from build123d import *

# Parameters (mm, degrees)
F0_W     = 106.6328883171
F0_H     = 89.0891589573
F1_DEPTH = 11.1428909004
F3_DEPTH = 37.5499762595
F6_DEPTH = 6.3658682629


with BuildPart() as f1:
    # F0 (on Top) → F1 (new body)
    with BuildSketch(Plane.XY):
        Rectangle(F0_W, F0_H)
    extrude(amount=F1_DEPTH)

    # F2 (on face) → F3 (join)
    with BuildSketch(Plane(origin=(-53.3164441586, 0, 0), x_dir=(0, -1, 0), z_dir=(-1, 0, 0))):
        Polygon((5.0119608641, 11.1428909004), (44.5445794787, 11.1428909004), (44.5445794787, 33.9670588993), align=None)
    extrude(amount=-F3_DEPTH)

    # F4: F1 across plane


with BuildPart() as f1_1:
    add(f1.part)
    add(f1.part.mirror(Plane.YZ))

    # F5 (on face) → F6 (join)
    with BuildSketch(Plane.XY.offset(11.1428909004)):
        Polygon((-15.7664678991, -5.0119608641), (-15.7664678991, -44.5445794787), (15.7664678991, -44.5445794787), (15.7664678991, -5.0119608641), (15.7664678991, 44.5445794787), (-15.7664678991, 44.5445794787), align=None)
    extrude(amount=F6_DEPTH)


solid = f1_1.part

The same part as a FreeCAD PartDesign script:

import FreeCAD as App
import Part
import Sketcher
from FreeCAD import Vector
Q = App.Units.Quantity

doc = App.newDocument("Part")
body = doc.addObject("PartDesign::Body", "Body")

sketch1 = body.newObject("Sketcher::SketchObject", "Sketch")
sketch1.AttachmentSupport = (doc.getObject("XY_Plane"), [""])
sketch1.MapMode = "FlatFace"
sketch1.addGeometry([
    Part.LineSegment(Vector(-53, 45, 0), Vector(-53, -45, 0)),
    Part.LineSegment(Vector(-53, -45, 0), Vector(53, -45, 0)),
    Part.LineSegment(Vector(53, -45, 0), Vector(53, 45, 0)),
    Part.LineSegment(Vector(53, 45, 0), Vector(-53, 45, 0)),
], False)
sketch1.addConstraint([
    Sketcher.Constraint("Coincident", 0, 2, 1, 1),
    Sketcher.Constraint("Coincident", 1, 2, 2, 1),
    Sketcher.Constraint("Coincident", 2, 2, 3, 1),
    Sketcher.Constraint("Coincident", 3, 2, 0, 1),
    Sketcher.Constraint("Vertical", 0),
    Sketcher.Constraint("Horizontal", 1),
    Sketcher.Constraint("Vertical", 2),
    Sketcher.Constraint("Horizontal", 3),
    Sketcher.Constraint("Symmetric", 0, 2, 2, 2, -1, 1),
    Sketcher.Constraint("DistanceX", 1, 1, 1, 2, 106.632888),
    Sketcher.Constraint("DistanceY", 0, 2, 0, 1, 89.089159),
])
pad1 = body.newObject("PartDesign::Pad", "Pad")
pad1.Profile = sketch1
pad1.Length = 11.142891

sketch2 = body.newObject("Sketcher::SketchObject", "Sketch001")
sketch2.AttachmentSupport = (doc.getObject("YZ_Plane"), [""])
sketch2.MapMode = "FlatFace"
sketch2.AttachmentOffset = App.Placement(Vector(0, 0, -53.316444), App.Rotation())
sketch2.addGeometry([
    Part.LineSegment(Vector(-5, 11, 0), Vector(-45, 11, 0)),
    Part.LineSegment(Vector(-45, 11, 0), Vector(-45, 34, 0)),
    Part.LineSegment(Vector(-45, 34, 0), Vector(-5, 11, 0)),
], False)
sketch2.addConstraint([
    Sketcher.Constraint("Coincident", 0, 2, 1, 1),
    Sketcher.Constraint("Coincident", 1, 2, 2, 1),
    Sketcher.Constraint("Coincident", 2, 2, 0, 1),
    Sketcher.Constraint("Horizontal", 0),
    Sketcher.Constraint("Vertical", 1),
    Sketcher.Constraint("Angle", 2, Q("-30 deg")),
    Sketcher.Constraint("DistanceX", 0, 2, 0, 1, 39.532619),
    Sketcher.Constraint("DistanceX", 0, 2, -1, 1, 44.544579),
    Sketcher.Constraint("DistanceY", -1, 1, 0, 2, 11.142891),
])
pad2 = body.newObject("PartDesign::Pad", "Pad001")
pad2.Profile = sketch2
pad2.Length = 37.549976
body2 = doc.addObject("PartDesign::Body", "Body001")
doc.recompute()

body2.BaseFeature = body
doc.recompute()

mirroring = doc.addObject("Part::Mirroring", "Mirroring")
mirroring.Source = body
mirroring.Base = Vector(0, 0, 0)
mirroring.Normal = Vector(1, 0, 0)
body3 = doc.addObject("PartDesign::Body", "Body002")
body3.BaseFeature = mirroring
boolean = body2.newObject("PartDesign::Boolean", "Boolean")
boolean.Type = "Fuse"
boolean.addObjects([body3])
doc.recompute()

sketch3 = body2.newObject("Sketcher::SketchObject", "Sketch002")
sketch3.AttachmentSupport = (doc.getObject("XY_Plane001"), [""])
sketch3.MapMode = "FlatFace"
sketch3.AttachmentOffset = App.Placement(Vector(0, 0, 11.142891), App.Rotation())
sketch3.addGeometry([
    Part.LineSegment(Vector(-16, -45, 0), Vector(16, -45, 0)),
    Part.LineSegment(Vector(16, -45, 0), Vector(16, 45, 0)),
    Part.LineSegment(Vector(16, 45, 0), Vector(-16, 45, 0)),
    Part.LineSegment(Vector(-16, 45, 0), Vector(-16, -45, 0)),
], False)
sketch3.addConstraint([
    Sketcher.Constraint("Coincident", 0, 2, 1, 1),
    Sketcher.Constraint("Coincident", 1, 2, 2, 1),
    Sketcher.Constraint("Coincident", 2, 2, 3, 1),
    Sketcher.Constraint("Coincident", 3, 2, 0, 1),
    Sketcher.Constraint("Horizontal", 0),
    Sketcher.Constraint("Vertical", 1),
    Sketcher.Constraint("Horizontal", 2),
    Sketcher.Constraint("Vertical", 3),
    Sketcher.Constraint("Symmetric", 0, 2, 2, 2, -1, 1),
    Sketcher.Constraint("DistanceY", 1, 1, 1, 2, 89.089159),
    Sketcher.Constraint("DistanceX", 0, 1, 0, 2, 31.532936),
])
pad3 = body2.newObject("PartDesign::Pad", "Pad002")
pad3.Profile = sketch3
pad3.Length = 6.365868
mirroring.Visibility = False

doc.recompute()
